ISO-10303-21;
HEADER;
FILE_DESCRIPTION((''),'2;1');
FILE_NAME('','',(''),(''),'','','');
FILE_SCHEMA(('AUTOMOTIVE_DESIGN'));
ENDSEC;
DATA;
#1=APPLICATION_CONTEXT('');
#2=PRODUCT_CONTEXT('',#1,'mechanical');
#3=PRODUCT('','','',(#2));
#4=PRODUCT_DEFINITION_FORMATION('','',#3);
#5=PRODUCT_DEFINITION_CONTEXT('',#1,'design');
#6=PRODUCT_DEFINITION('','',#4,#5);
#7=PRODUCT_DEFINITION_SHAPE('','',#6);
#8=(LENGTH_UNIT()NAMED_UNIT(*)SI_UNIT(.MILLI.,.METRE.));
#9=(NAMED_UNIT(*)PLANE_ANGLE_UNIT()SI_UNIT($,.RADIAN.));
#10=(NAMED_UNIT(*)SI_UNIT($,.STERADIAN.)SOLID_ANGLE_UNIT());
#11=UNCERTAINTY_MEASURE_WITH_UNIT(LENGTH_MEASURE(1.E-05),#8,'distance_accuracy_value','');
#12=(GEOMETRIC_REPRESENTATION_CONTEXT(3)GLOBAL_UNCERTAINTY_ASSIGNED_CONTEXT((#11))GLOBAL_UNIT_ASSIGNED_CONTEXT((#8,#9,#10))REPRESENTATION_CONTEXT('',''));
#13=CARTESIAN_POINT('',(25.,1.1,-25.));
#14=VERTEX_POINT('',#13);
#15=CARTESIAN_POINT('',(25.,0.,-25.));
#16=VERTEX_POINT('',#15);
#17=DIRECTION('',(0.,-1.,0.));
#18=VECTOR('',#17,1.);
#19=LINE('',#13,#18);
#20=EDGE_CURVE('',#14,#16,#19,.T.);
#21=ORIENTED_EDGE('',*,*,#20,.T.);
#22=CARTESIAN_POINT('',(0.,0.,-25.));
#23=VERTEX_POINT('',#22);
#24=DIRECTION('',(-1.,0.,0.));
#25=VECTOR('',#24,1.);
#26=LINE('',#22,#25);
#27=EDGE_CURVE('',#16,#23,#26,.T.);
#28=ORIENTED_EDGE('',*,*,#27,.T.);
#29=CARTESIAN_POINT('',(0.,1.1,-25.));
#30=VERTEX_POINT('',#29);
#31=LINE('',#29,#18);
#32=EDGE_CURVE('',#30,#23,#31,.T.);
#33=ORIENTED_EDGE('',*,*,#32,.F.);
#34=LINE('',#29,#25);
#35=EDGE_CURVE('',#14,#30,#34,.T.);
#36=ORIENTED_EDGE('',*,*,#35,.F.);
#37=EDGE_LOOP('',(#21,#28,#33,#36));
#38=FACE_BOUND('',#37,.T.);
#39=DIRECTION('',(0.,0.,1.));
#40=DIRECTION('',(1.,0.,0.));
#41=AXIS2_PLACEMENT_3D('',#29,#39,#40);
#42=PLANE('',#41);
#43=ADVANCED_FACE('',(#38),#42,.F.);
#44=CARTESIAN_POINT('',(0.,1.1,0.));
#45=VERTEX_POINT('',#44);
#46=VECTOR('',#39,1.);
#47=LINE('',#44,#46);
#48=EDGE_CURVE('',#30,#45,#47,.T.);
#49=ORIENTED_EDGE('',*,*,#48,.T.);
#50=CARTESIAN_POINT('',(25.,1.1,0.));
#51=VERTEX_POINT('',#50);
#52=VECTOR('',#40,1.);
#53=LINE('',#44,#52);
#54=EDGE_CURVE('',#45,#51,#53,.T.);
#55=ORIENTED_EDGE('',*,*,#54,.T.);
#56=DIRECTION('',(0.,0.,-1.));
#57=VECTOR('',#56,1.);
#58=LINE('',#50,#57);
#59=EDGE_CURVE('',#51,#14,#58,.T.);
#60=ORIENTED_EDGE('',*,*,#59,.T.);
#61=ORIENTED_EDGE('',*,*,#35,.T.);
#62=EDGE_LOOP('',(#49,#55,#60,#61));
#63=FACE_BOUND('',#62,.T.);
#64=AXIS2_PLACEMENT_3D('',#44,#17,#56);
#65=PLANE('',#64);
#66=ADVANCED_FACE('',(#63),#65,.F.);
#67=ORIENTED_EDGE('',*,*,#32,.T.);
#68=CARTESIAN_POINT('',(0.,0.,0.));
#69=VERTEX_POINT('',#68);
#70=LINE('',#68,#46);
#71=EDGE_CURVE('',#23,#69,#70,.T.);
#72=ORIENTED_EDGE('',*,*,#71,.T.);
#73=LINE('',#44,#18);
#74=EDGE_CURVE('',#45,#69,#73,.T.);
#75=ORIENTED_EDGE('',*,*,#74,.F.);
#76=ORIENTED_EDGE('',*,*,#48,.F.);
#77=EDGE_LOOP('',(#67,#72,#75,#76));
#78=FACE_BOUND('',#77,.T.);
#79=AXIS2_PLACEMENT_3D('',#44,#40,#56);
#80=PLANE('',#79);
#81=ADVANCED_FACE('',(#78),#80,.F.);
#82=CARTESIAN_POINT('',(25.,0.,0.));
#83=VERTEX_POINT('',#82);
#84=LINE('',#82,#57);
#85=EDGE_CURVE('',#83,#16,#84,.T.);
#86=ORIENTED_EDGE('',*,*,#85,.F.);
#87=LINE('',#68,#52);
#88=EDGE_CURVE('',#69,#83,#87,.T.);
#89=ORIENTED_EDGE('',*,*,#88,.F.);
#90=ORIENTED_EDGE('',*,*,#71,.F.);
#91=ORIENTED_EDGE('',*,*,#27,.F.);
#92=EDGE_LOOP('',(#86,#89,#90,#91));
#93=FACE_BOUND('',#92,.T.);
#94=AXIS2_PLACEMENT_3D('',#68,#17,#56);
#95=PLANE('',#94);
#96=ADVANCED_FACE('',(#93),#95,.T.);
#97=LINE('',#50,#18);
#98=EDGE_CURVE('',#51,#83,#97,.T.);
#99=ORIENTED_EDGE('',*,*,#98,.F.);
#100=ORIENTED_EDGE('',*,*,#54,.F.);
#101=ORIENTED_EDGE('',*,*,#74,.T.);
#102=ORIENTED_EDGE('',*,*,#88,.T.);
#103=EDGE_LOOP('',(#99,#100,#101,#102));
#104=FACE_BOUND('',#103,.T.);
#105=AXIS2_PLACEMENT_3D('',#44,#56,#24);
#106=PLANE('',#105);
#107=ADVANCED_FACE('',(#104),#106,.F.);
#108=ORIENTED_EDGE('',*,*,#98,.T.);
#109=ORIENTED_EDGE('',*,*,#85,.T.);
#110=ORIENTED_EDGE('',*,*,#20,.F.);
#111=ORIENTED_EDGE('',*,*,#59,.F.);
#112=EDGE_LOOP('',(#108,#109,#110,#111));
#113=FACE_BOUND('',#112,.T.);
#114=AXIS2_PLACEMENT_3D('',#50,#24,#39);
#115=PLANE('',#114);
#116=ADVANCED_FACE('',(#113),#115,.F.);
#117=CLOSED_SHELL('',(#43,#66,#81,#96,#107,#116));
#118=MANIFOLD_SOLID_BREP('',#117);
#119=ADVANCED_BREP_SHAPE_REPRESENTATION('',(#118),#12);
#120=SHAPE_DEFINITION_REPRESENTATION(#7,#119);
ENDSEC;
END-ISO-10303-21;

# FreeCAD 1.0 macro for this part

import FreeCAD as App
import Part
import Sketcher

V = App.Vector
Q = App.Units.Quantity


def add_polygon(sketch, points):
    """Adds a closed chain of lines whose ends are joined by coincident constraints."""
    first, n = sketch.GeometryCount, len(points)
    for a, b in zip(points, points[1:] + points[:1]):
        sketch.addGeometry(Part.LineSegment(App.Vector(*a, 0), App.Vector(*b, 0)), False)
    for i in range(n):
        sketch.addConstraint(Sketcher.Constraint("Coincident", first + i, 2, first + (i + 1) % n, 1))

doc = App.newDocument("Part")
body = doc.addObject("PartDesign::Body", "Body")

# Sketch on XZ plane
sketch1 = body.newObject("Sketcher::SketchObject", "Sketch")
sketch1.AttachmentSupport = (doc.getObject("XZ_Plane"), [""])
sketch1.MapMode = "FlatFace"
add_polygon(sketch1, [(0, -25), (0, 0), (25, 0), (25, -25)])  # lines 0-3
sketch1.addConstraint([
    Sketcher.Constraint("Vertical", 0),
    Sketcher.Constraint("Horizontal", 1),
    Sketcher.Constraint("Vertical", 2),
    Sketcher.Constraint("Horizontal", 3),
    Sketcher.Constraint("Coincident", 0, 2, -1, 1),
    Sketcher.Constraint("Equal", 3, 0),
    Sketcher.Constraint("DistanceX", 1, 1, 1, 2, Q("25 mm")),
])
pad1 = body.newObject("PartDesign::Pad", "Pad")
pad1.Profile = sketch1
pad1.Length = 1.1
pad1.Reversed = True

doc.recompute()
